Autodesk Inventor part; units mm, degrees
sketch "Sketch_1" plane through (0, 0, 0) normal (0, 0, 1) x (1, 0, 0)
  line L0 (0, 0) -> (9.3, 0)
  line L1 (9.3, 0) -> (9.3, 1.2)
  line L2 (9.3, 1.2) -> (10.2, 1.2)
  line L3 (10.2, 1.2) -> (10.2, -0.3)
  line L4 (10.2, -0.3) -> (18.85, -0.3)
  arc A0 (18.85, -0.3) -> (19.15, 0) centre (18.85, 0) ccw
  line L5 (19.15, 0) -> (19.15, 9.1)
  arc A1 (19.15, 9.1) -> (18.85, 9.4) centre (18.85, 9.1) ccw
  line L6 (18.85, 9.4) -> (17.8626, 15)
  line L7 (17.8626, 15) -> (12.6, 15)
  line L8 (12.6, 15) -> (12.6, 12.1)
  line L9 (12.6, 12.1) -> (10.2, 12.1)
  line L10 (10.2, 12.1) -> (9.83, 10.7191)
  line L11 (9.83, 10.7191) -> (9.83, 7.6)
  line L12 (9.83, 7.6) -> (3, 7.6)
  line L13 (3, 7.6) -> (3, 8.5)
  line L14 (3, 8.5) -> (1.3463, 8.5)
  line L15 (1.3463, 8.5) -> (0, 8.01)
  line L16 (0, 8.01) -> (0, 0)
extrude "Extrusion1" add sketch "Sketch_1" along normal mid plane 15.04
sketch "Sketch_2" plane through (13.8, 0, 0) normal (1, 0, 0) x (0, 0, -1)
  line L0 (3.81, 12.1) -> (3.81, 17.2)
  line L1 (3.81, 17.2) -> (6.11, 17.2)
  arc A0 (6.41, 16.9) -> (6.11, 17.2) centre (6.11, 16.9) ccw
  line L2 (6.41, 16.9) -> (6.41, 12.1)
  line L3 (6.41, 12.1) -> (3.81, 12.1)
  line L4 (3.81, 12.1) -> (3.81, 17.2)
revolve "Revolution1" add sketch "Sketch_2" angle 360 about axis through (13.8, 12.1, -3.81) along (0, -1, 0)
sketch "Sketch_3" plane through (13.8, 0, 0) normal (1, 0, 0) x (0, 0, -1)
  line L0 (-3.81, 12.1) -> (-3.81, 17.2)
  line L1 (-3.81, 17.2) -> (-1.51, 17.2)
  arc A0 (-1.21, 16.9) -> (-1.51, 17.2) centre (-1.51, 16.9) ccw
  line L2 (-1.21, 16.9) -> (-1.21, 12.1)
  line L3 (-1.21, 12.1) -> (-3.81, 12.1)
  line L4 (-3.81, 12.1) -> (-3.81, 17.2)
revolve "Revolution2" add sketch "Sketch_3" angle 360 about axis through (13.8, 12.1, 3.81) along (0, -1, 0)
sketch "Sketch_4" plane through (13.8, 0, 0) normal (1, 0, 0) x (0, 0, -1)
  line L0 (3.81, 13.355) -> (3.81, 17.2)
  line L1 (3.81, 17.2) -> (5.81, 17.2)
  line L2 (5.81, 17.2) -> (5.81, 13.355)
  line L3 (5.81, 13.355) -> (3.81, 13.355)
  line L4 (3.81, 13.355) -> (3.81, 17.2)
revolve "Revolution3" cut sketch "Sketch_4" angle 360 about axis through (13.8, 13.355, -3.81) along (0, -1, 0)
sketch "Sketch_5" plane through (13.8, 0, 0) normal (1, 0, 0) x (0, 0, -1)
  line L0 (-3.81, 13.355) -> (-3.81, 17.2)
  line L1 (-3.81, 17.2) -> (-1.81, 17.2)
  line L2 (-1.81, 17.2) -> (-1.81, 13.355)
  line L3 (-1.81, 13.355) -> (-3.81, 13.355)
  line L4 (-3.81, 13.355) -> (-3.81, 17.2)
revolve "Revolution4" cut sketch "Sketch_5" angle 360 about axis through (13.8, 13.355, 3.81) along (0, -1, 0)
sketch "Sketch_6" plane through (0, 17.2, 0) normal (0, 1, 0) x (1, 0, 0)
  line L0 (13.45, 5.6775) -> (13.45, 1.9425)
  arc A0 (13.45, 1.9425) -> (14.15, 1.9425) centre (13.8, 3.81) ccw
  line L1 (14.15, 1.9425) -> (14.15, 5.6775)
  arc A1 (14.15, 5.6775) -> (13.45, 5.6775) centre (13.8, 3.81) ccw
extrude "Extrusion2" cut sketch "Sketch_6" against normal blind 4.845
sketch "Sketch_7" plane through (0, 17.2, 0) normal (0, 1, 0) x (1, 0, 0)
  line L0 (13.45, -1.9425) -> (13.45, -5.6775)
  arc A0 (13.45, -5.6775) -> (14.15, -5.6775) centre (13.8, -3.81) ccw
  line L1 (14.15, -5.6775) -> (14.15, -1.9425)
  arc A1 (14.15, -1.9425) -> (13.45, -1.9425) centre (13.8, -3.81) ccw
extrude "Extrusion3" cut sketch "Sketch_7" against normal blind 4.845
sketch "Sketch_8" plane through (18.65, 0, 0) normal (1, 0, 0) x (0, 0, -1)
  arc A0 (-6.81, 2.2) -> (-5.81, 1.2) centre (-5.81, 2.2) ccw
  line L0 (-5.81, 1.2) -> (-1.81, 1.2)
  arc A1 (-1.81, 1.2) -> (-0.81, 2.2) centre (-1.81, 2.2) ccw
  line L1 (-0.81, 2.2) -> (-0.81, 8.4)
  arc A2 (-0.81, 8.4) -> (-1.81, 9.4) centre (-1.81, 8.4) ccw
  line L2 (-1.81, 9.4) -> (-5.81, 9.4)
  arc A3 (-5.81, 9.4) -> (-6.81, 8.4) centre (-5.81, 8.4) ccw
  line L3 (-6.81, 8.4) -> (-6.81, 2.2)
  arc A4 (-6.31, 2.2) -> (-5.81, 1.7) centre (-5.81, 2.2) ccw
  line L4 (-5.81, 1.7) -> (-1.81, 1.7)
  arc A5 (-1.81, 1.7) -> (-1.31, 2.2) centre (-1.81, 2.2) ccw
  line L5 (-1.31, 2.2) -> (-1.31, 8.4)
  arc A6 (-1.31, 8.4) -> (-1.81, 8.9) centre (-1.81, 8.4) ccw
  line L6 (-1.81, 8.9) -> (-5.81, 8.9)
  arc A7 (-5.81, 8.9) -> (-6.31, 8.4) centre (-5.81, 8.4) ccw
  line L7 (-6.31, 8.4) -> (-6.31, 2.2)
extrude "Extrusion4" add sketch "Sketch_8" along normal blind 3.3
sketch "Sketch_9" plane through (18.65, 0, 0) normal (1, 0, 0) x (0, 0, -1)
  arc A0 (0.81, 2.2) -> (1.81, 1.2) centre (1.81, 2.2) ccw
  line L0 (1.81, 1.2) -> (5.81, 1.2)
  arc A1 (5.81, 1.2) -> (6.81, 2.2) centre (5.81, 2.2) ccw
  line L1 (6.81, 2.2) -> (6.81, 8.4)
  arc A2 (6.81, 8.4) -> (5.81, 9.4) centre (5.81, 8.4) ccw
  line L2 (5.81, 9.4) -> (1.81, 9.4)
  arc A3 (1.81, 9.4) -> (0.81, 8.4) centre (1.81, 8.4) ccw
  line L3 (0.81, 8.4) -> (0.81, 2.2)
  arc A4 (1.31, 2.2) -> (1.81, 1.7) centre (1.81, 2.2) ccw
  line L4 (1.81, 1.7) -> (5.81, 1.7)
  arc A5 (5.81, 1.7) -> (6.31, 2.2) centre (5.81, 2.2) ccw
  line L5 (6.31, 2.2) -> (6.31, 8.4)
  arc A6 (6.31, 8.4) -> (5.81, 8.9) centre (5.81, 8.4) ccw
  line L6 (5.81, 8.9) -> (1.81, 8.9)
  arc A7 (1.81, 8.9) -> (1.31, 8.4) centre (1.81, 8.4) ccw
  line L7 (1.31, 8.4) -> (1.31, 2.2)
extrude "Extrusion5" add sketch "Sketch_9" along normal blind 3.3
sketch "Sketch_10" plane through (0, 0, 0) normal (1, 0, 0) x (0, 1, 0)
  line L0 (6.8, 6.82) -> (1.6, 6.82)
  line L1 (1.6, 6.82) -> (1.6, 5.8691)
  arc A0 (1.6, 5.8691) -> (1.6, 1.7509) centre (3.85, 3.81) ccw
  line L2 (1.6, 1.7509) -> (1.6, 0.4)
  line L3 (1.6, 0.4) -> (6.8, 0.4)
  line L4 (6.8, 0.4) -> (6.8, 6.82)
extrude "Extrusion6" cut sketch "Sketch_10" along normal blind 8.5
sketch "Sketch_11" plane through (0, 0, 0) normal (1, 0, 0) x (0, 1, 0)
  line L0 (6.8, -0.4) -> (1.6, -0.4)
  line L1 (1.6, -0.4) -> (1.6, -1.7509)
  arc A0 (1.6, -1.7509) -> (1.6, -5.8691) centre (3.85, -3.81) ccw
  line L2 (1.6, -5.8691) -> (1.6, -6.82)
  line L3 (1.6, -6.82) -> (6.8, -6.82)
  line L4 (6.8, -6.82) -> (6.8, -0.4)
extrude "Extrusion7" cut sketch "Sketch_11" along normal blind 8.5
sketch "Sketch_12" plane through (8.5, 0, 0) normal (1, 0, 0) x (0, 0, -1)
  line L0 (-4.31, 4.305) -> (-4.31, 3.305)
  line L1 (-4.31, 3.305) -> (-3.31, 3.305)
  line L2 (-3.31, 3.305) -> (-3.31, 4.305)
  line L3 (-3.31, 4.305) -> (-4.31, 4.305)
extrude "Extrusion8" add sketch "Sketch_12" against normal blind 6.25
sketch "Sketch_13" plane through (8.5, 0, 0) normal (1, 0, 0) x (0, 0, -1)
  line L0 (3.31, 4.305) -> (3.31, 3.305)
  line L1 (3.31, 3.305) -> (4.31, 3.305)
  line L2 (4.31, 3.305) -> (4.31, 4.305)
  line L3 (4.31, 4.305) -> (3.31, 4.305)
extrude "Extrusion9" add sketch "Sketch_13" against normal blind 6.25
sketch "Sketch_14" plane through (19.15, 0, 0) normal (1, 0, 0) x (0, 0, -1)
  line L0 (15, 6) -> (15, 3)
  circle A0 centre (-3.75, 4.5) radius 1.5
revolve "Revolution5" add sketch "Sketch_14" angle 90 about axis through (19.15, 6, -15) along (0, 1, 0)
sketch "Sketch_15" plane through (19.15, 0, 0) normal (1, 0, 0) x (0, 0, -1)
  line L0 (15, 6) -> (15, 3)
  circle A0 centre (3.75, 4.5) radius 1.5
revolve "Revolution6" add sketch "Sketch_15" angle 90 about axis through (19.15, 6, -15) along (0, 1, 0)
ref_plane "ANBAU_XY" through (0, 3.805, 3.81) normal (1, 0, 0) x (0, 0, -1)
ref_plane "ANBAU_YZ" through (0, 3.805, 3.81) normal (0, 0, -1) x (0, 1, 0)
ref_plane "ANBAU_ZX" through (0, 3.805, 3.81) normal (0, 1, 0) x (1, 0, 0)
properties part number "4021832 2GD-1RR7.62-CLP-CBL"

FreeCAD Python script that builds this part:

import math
import FreeCAD as App
import Part
import Sketcher
from FreeCAD import Vector
Q = App.Units.Quantity

doc = App.newDocument("Part")
body = doc.addObject("PartDesign::Body", "Body")

# Sketch on XY plane
sketch1 = body.newObject("Sketcher::SketchObject", "Sketch")
sketch1.AttachmentSupport = (doc.getObject("XY_Plane"), [""])
sketch1.MapMode = "FlatFace"
sketch1.addGeometry([
    Part.LineSegment(Vector(0, 8.01, 0), Vector(0, 0, 0)),  # 0
    Part.LineSegment(Vector(0, 0, 0), Vector(9.3, 0, 0)),  # 1
    Part.LineSegment(Vector(9.3, 0, 0), Vector(9.3, 1.2, 0)),  # 2
    Part.LineSegment(Vector(9.3, 1.2, 0), Vector(10.2, 1.2, 0)),  # 3
    Part.LineSegment(Vector(10.2, 1.2, 0), Vector(10.2, -0.3, 0)),  # 4
    Part.LineSegment(Vector(10.2, -0.3, 0), Vector(18.85, -0.3, 0)),  # 5
    Part.ArcOfCircle(Part.Circle(Vector(18.85, 0, 0), Vector(0, 0, 1), 0.3), math.radians(-90), math.radians(0)),  # 6
    Part.LineSegment(Vector(19.15, 0, 0), Vector(19.15, 9.1, 0)),  # 7
    Part.ArcOfCircle(Part.Circle(Vector(18.85, 9.1, 0), Vector(0, 0, 1), 0.3), math.radians(0), math.radians(90)),  # 8
    Part.LineSegment(Vector(18.85, 9.4, 0), Vector(17.86, 15, 0)),  # 9
    Part.LineSegment(Vector(17.86, 15, 0), Vector(12.6, 15, 0)),  # 10
    Part.LineSegment(Vector(12.6, 15, 0), Vector(12.6, 12.1, 0)),  # 11
    Part.LineSegment(Vector(12.6, 12.1, 0), Vector(10.2, 12.1, 0)),  # 12
    Part.LineSegment(Vector(10.2, 12.1, 0), Vector(9.83, 10.72, 0)),  # 13
    Part.LineSegment(Vector(9.83, 10.72, 0), Vector(9.83, 7.6, 0)),  # 14
    Part.LineSegment(Vector(9.83, 7.6, 0), Vector(3, 7.6, 0)),  # 15
    Part.LineSegment(Vector(3, 7.6, 0), Vector(3, 8.5, 0)),  # 16
    Part.LineSegment(Vector(3, 8.5, 0), Vector(1.35, 8.5, 0)),  # 17
    Part.LineSegment(Vector(1.35, 8.5, 0), Vector(0, 8.01, 0)),  # 18
], False)
sketch1.addConstraint([
    Sketcher.Constraint("Coincident", 0, 2, 1, 1),
    Sketcher.Constraint("Coincident", 1, 2, 2, 1),
    Sketcher.Constraint("Coincident", 2, 2, 3, 1),
    Sketcher.Constraint("Coincident", 3, 2, 4, 1),
    Sketcher.Constraint("Coincident", 4, 2, 5, 1),
    Sketcher.Constraint("Tangent", 5, 2, 6, 1),
    Sketcher.Constraint("Tangent", 6, 2, 7, 1),
    Sketcher.Constraint("Tangent", 7, 2, 8, 1),
    Sketcher.Constraint("Coincident", 8, 2, 9, 1),
    Sketcher.Constraint("Coincident", 9, 2, 10, 1),
    Sketcher.Constraint("Coincident", 10, 2, 11, 1),
    Sketcher.Constraint("Coincident", 11, 2, 12, 1),
    Sketcher.Constraint("Coincident", 12, 2, 13, 1),
    Sketcher.Constraint("Coincident", 13, 2, 14, 1),
    Sketcher.Constraint("Coincident", 14, 2, 15, 1),
    Sketcher.Constraint("Coincident", 15, 2, 16, 1),
    Sketcher.Constraint("Coincident", 16, 2, 17, 1),
    Sketcher.Constraint("Coincident", 17, 2, 18, 1),
    Sketcher.Constraint("Coincident", 18, 2, 0, 1),
    Sketcher.Constraint("Vertical", 0),
    Sketcher.Constraint("Horizontal", 1),
    Sketcher.Constraint("Vertical", 2),
    Sketcher.Constraint("Horizontal", 3),
    Sketcher.Constraint("Vertical", 4),
    Sketcher.Constraint("Horizontal", 5),
    Sketcher.Constraint("Vertical", 7),
    Sketcher.Constraint("Horizontal", 10),
    Sketcher.Constraint("Vertical", 11),
    Sketcher.Constraint("Horizontal", 12),
    Sketcher.Constraint("Vertical", 14),
    Sketcher.Constraint("Horizontal", 15),
    Sketcher.Constraint("Vertical", 16),
    Sketcher.Constraint("Horizontal", 17),
    Sketcher.Constraint("Coincident", 0, 2, -1, 1),
    Sketcher.Constraint("Equal", 6, 8),
    Sketcher.Constraint("PointOnObject", 6, 3, -1),
    Sketcher.Constraint("Vertical", 5, 2, 8, 2),
    Sketcher.Constraint("Vertical", 4, 2, 12, 2),
    Sketcher.Constraint("Equal", 3, 16),
    Sketcher.Constraint("Radius", 6, Q("0.3 mm")),
    Sketcher.Constraint("Angle", 9, Q("99.9997 deg")),
    Sketcher.Constraint("Angle", 13, Q("-104.9996 deg")),
    Sketcher.Constraint("Angle", 18, Q("-160.0005 deg")),
    Sketcher.Constraint("DistanceX", 1, 1, 1, 2, Q("9.3 mm")),
    Sketcher.Constraint("DistanceX", 3, 1, 3, 2, Q("0.9 mm")),
    Sketcher.Constraint("DistanceX", 12, 2, 12, 1, Q("2.4 mm")),
    Sketcher.Constraint("DistanceY", 2, 1, 2, 2, Q("1.2 mm")),
    Sketcher.Constraint("DistanceY", 7, 1, 7, 2, Q("9.1 mm")),
    Sketcher.Constraint("DistanceY", 11, 2, 11, 1, Q("2.9 mm")),
    Sketcher.Constraint("DistanceY", -1, 1, 9, 2, Q("15 mm")),
    Sketcher.Constraint("DistanceX", -1, 1, 15, 2, Q("3 mm")),
    Sketcher.Constraint("DistanceX", 5, 1, 5, 2, Q("8.65 mm")),
    Sketcher.Constraint("DistanceX", 15, 2, 15, 1, Q("6.83 mm")),
    Sketcher.Constraint("DistanceY", 0, 2, 0, 1, Q("8.01 mm")),
    Sketcher.Constraint("DistanceY", -1, 1, 14, 2, Q("7.6 mm")),
])
pad1 = body.newObject("PartDesign::Pad", "Pad")
pad1.Profile = sketch1
pad1.Length = 15.04
pad1.Midplane = True

# Sketch on YZ plane
sketch2 = body.newObject("Sketcher::SketchObject", "Sketch001")
sketch2.AttachmentSupport = (doc.getObject("YZ_Plane"), [""])
sketch2.MapMode = "FlatFace"
sketch2.AttachmentOffset = App.Placement(Vector(0, 0, 13.8), App.Rotation())
sketch2.addGeometry([
    Part.LineSegment(Vector(17.2, -3.81, 0), Vector(12.1, -3.81, 0)),  # 0
    Part.LineSegment(Vector(12.1, -3.81, 0), Vector(12.1, -6.41, 0)),  # 1
    Part.LineSegment(Vector(12.1, -6.41, 0), Vector(16.9, -6.41, 0)),  # 2
    Part.ArcOfCircle(Part.Circle(Vector(16.9, -6.11, 0), Vector(0, 0, 1), 0.3), math.radians(-90), math.radians(0)),  # 3
    Part.LineSegment(Vector(17.2, -6.11, 0), Vector(17.2, -3.81, 0)),  # 4
], False)
sketch2.addGeometry(Part.LineSegment(Vector(17.2, -3.81, 0), Vector(12.1, -3.81, 0)), True)  # axis
sketch2.addConstraint([
    Sketcher.Constraint("Coincident", 0, 2, 1, 1),
    Sketcher.Constraint("Coincident", 1, 2, 2, 1),
    Sketcher.Constraint("Tangent", 2, 2, 3, 1),
    Sketcher.Constraint("Tangent", 3, 2, 4, 1),
    Sketcher.Constraint("Coincident", 4, 2, 0, 1),
    Sketcher.Constraint("Horizontal", 0),
    Sketcher.Constraint("Vertical", 1),
    Sketcher.Constraint("Horizontal", 2),
    Sketcher.Constraint("Vertical", 4),
    Sketcher.Constraint("Horizontal", 5),
    Sketcher.Constraint("Coincident", 5, 1, 4, 2),
    Sketcher.Constraint("Vertical", 1, 2, 5, 2),
    Sketcher.Constraint("Radius", 3, Q("0.3 mm")),
    Sketcher.Constraint("DistanceX", 0, 2, 0, 1, Q("5.1 mm")),
    Sketcher.Constraint("DistanceY", 1, 2, 1, 1, Q("2.6 mm")),
    Sketcher.Constraint("DistanceX", -1, 1, 3, 3, Q("16.9 mm")),
    Sketcher.Constraint("DistanceY", 3, 3, -1, 1, Q("6.11 mm")),
])
revolution = body.newObject("PartDesign::Revolution", "Revolution")
revolution.Profile = sketch2
revolution.ReferenceAxis = (sketch2, ["Axis0"])
revolution.Angle = 360

# Sketch on YZ plane
sketch3 = body.newObject("Sketcher::SketchObject", "Sketch002")
sketch3.AttachmentSupport = (doc.getObject("YZ_Plane"), [""])
sketch3.MapMode = "FlatFace"
sketch3.AttachmentOffset = App.Placement(Vector(0, 0, 13.8), App.Rotation())
sketch3.addGeometry([
    Part.LineSegment(Vector(17.2, 3.81, 0), Vector(12.1, 3.81, 0)),  # 0
    Part.LineSegment(Vector(12.1, 3.81, 0), Vector(12.1, 1.21, 0)),  # 1
    Part.LineSegment(Vector(12.1, 1.21, 0), Vector(16.9, 1.21, 0)),  # 2
    Part.ArcOfCircle(Part.Circle(Vector(16.9, 1.51, 0), Vector(0, 0, 1), 0.3), math.radians(-90), math.radians(0)),  # 3
    Part.LineSegment(Vector(17.2, 1.51, 0), Vector(17.2, 3.81, 0)),  # 4
], False)
sketch3.addGeometry(Part.LineSegment(Vector(17.2, 3.81, 0), Vector(12.1, 3.81, 0)), True)  # axis
sketch3.addConstraint([
    Sketcher.Constraint("Coincident", 0, 2, 1, 1),
    Sketcher.Constraint("Coincident", 1, 2, 2, 1),
    Sketcher.Constraint("Tangent", 2, 2, 3, 1),
    Sketcher.Constraint("Tangent", 3, 2, 4, 1),
    Sketcher.Constraint("Coincident", 4, 2, 0, 1),
    Sketcher.Constraint("Horizontal", 0),
    Sketcher.Constraint("Vertical", 1),
    Sketcher.Constraint("Horizontal", 2),
    Sketcher.Constraint("Vertical", 4),
    Sketcher.Constraint("Horizontal", 5),
    Sketcher.Constraint("Coincident", 5, 1, 4, 2),
    Sketcher.Constraint("Vertical", 1, 2, 5, 2),
    Sketcher.Constraint("Radius", 3, Q("0.3 mm")),
    Sketcher.Constraint("DistanceX", 0, 2, 0, 1, Q("5.1 mm")),
    Sketcher.Constraint("DistanceY", 1, 2, 1, 1, Q("2.6 mm")),
    Sketcher.Constraint("DistanceX", -1, 1, 3, 3, Q("16.9 mm")),
    Sketcher.Constraint("DistanceY", -1, 1, 3, 3, Q("1.51 mm")),
])
revolution2 = body.newObject("PartDesign::Revolution", "Revolution001")
revolution2.Profile = sketch3
revolution2.ReferenceAxis = (sketch3, ["Axis0"])
revolution2.Angle = 360

# Sketch on YZ plane
sketch4 = body.newObject("Sketcher::SketchObject", "Sketch003")
sketch4.AttachmentSupport = (doc.getObject("YZ_Plane"), [""])
sketch4.MapMode = "FlatFace"
sketch4.AttachmentOffset = App.Placement(Vector(0, 0, 13.8), App.Rotation())
sketch4.addGeometry([
    Part.LineSegment(Vector(17.2, -3.8, 0), Vector(13.4, -3.8, 0)),
    Part.LineSegment(Vector(13.4, -3.8, 0), Vector(13.4, -5.8, 0)),
    Part.LineSegment(Vector(13.4, -5.8, 0), Vector(17.2, -5.8, 0)),
    Part.LineSegment(Vector(17.2, -5.8, 0), Vector(17.2, -3.8, 0)),
], False)
sketch4.addGeometry(Part.LineSegment(Vector(17.2, -3.8, 0), Vector(13.4, -3.8, 0)), True)  # axis
sketch4.addConstraint([
    Sketcher.Constraint("Coincident", 0, 2, 1, 1),
    Sketcher.Constraint("Coincident", 1, 2, 2, 1),
    Sketcher.Constraint("Coincident", 2, 2, 3, 1),
    Sketcher.Constraint("Coincident", 3, 2, 0, 1),
    Sketcher.Constraint("Horizontal", 0),
    Sketcher.Constraint("Vertical", 1),
    Sketcher.Constraint("Horizontal", 2),
    Sketcher.Constraint("Vertical", 3),
    Sketcher.Constraint("Horizontal", 4),
    Sketcher.Constraint("Coincident", 4, 1, 3, 2),
    Sketcher.Constraint("Vertical", 1, 2, 4, 2),
    Sketcher.Constraint("DistanceY", 1, 2, 1, 1, Q("2 mm")),
    Sketcher.Constraint("DistanceX", -1, 1, 2, 2, Q("17.2 mm")),
    Sketcher.Constraint("DistanceX", 0, 2, 0, 1, Q("3.845 mm")),
    Sketcher.Constraint("DistanceY", 0, 2, -1, 1, Q("3.81 mm")),
])
groove = body.newObject("PartDesign::Groove", "Groove")
groove.Profile = sketch4
groove.ReferenceAxis = (sketch4, ["Axis0"])
groove.Angle = 360

# Sketch on YZ plane
sketch5 = body.newObject("Sketcher::SketchObject", "Sketch004")
sketch5.AttachmentSupport = (doc.getObject("YZ_Plane"), [""])
sketch5.MapMode = "FlatFace"
sketch5.AttachmentOffset = App.Placement(Vector(0, 0, 13.8), App.Rotation())
sketch5.addGeometry([
    Part.LineSegment(Vector(17.2, 3.8, 0), Vector(13.4, 3.8, 0)),
    Part.LineSegment(Vector(13.4, 3.8, 0), Vector(13.4, 1.8, 0)),
    Part.LineSegment(Vector(13.4, 1.8, 0), Vector(17.2, 1.8, 0)),
    Part.LineSegment(Vector(17.2, 1.8, 0), Vector(17.2, 3.8, 0)),
], False)
sketch5.addGeometry(Part.LineSegment(Vector(17.2, 3.8, 0), Vector(13.4, 3.8, 0)), True)  # axis
sketch5.addConstraint([
    Sketcher.Constraint("Coincident", 0, 2, 1, 1),
    Sketcher.Constraint("Coincident", 1, 2, 2, 1),
    Sketcher.Constraint("Coincident", 2, 2, 3, 1),
    Sketcher.Constraint("Coincident", 3, 2, 0, 1),
    Sketcher.Constraint("Horizontal", 0),
    Sketcher.Constraint("Vertical", 1),
    Sketcher.Constraint("Horizontal", 2),
    Sketcher.Constraint("Vertical", 3),
    Sketcher.Constraint("Horizontal", 4),
    Sketcher.Constraint("Coincident", 4, 1, 3, 2),
    Sketcher.Constraint("Vertical", 1, 2, 4, 2),
    Sketcher.Constraint("DistanceY", 1, 2, 1, 1, Q("2 mm")),
    Sketcher.Constraint("DistanceX", -1, 1, 2, 2, Q("17.2 mm")),
    Sketcher.Constraint("DistanceX", 0, 2, 0, 1, Q("3.845 mm")),
    Sketcher.Constraint("DistanceY", -1, 1, 0, 2, Q("3.81 mm")),
])
groove2 = body.newObject("PartDesign::Groove", "Groove001")
groove2.Profile = sketch5
groove2.ReferenceAxis = (sketch5, ["Axis0"])
groove2.Angle = 360

# Sketch on XZ plane
sketch6 = body.newObject("Sketcher::SketchObject", "Sketch005")
sketch6.AttachmentSupport = (doc.getObject("XZ_Plane"), [""])
sketch6.MapMode = "FlatFace"
sketch6.AttachmentOffset = App.Placement(Vector(0, 0, -17.2), App.Rotation())
sketch6.addGeometry([
    Part.ArcOfCircle(Part.Circle(Vector(13.8, -3.8, 0), Vector(0, 0, 1), 1.9), math.radians(-101), math.radians(-79)),
    Part.LineSegment(Vector(13.4, -5.7, 0), Vector(13.4, -1.9, 0)),
    Part.ArcOfCircle(Part.Circle(Vector(13.8, -3.8, 0), Vector(0, 0, 1), 1.9), math.radians(79), math.radians(101)),
    Part.LineSegment(Vector(14.2, -1.9, 0), Vector(14.2, -5.7, 0)),
], False)
sketch6.addConstraint([
    Sketcher.Constraint("Coincident", 0, 1, 1, 1),
    Sketcher.Constraint("Coincident", 1, 2, 2, 2),
    Sketcher.Constraint("Coincident", 2, 1, 3, 1),
    Sketcher.Constraint("Coincident", 3, 2, 0, 2),
    Sketcher.Constraint("Vertical", 1),
    Sketcher.Constraint("Vertical", 3),
    Sketcher.Constraint("Coincident", 2, 3, 0, 3),
    Sketcher.Constraint("Equal", 0, 2),
    Sketcher.Constraint("Horizontal", 1, 2, 2, 1),
    Sketcher.Constraint("Radius", 0, Q("1.9 mm")),
    Sketcher.Constraint("DistanceX", -1, 1, 0, 3, Q("13.8 mm")),
    Sketcher.Constraint("DistanceX", 1, 2, 2, 1, Q("0.7 mm")),
    Sketcher.Constraint("DistanceY", 0, 3, -1, 1, Q("3.81 mm")),
])
pocket1 = body.newObject("PartDesign::Pocket", "Pocket")
pocket1.Profile = sketch6
pocket1.Length = 4.845
pocket1.Reversed = True

# Sketch on XZ plane
sketch7 = body.newObject("Sketcher::SketchObject", "Sketch006")
sketch7.AttachmentSupport = (doc.getObject("XZ_Plane"), [""])
sketch7.MapMode = "FlatFace"
sketch7.AttachmentOffset = App.Placement(Vector(0, 0, -17.2), App.Rotation())
sketch7.addGeometry([
    Part.ArcOfCircle(Part.Circle(Vector(13.8, 3.8, 0), Vector(0, 0, 1), 1.9), math.radians(-101), math.radians(-79)),
    Part.LineSegment(Vector(13.4, 1.9, 0), Vector(13.4, 5.7, 0)),
    Part.ArcOfCircle(Part.Circle(Vector(13.8, 3.8, 0), Vector(0, 0, 1), 1.9), math.radians(79), math.radians(101)),
    Part.LineSegment(Vector(14.2, 5.7, 0), Vector(14.2, 1.9, 0)),
], False)
sketch7.addConstraint([
    Sketcher.Constraint("Coincident", 0, 1, 1, 1),
    Sketcher.Constraint("Coincident", 1, 2, 2, 2),
    Sketcher.Constraint("Coincident", 2, 1, 3, 1),
    Sketcher.Constraint("Coincident", 3, 2, 0, 2),
    Sketcher.Constraint("Vertical", 1),
    Sketcher.Constraint("Vertical", 3),
    Sketcher.Constraint("Coincident", 2, 3, 0, 3),
    Sketcher.Constraint("Equal", 0, 2),
    Sketcher.Constraint("Horizontal", 1, 2, 2, 1),
    Sketcher.Constraint("Radius", 0, Q("1.9 mm")),
    Sketcher.Constraint("DistanceX", -1, 1, 0, 3, Q("13.8 mm")),
    Sketcher.Constraint("DistanceX", 1, 2, 2, 1, Q("0.7 mm")),
    Sketcher.Constraint("DistanceY", -1, 1, 0, 3, Q("3.81 mm")),
])
pocket2 = body.newObject("PartDesign::Pocket", "Pocket001")
pocket2.Profile = sketch7
pocket2.Length = 4.845
pocket2.Reversed = True

# Sketch on YZ plane
sketch8 = body.newObject("Sketcher::SketchObject", "Sketch007")
sketch8.AttachmentSupport = (doc.getObject("YZ_Plane"), [""])
sketch8.MapMode = "FlatFace"
sketch8.AttachmentOffset = App.Placement(Vector(0, 0, 18.65), App.Rotation())
sketch8.addGeometry([
    Part.LineSegment(Vector(8.4, 6.8, 0), Vector(2.2, 6.8, 0)),  # 0
    Part.ArcOfCircle(Part.Circle(Vector(2.2, 5.8, 0), Vector(0, 0, 1), 1), math.radians(90), math.radians(180)),  # 1
    Part.LineSegment(Vector(1.2, 5.8, 0), Vector(1.2, 1.8, 0)),  # 2
    Part.ArcOfCircle(Part.Circle(Vector(2.2, 1.8, 0), Vector(0, 0, 1), 1), math.radians(180), math.radians(270)),  # 3
    Part.LineSegment(Vector(2.2, 0.8, 0), Vector(8.4, 0.8, 0)),  # 4
    Part.ArcOfCircle(Part.Circle(Vector(8.4, 1.8, 0), Vector(0, 0, 1), 1), math.radians(-90), math.radians(0)),  # 5
    Part.LineSegment(Vector(9.4, 1.8, 0), Vector(9.4, 5.8, 0)),  # 6
    Part.ArcOfCircle(Part.Circle(Vector(8.4, 5.8, 0), Vector(0, 0, 1), 1), math.radians(0), math.radians(90)),  # 7
    Part.ArcOfCircle(Part.Circle(Vector(2.2, 5.8, 0), Vector(0, 0, 1), 0.5), math.radians(90), math.radians(180)),  # 8
    Part.LineSegment(Vector(2.2, 6.3, 0), Vector(8.4, 6.3, 0)),  # 9
    Part.ArcOfCircle(Part.Circle(Vector(8.4, 5.8, 0), Vector(0, 0, 1), 0.5), math.radians(0), math.radians(90)),  # 10
    Part.LineSegment(Vector(8.9, 5.8, 0), Vector(8.9, 1.8, 0)),  # 11
    Part.ArcOfCircle(Part.Circle(Vector(8.4, 1.8, 0), Vector(0, 0, 1), 0.5), math.radians(-90), math.radians(0)),  # 12
    Part.LineSegment(Vector(8.4, 1.3, 0), Vector(2.2, 1.3, 0)),  # 13
    Part.ArcOfCircle(Part.Circle(Vector(2.2, 1.8, 0), Vector(0, 0, 1), 0.5), math.radians(180), math.radians(270)),  # 14
    Part.LineSegment(Vector(1.7, 1.8, 0), Vector(1.7, 5.8, 0)),  # 15
], False)
sketch8.addConstraint([
    Sketcher.Constraint("Tangent", 0, 2, 1, 1),
    Sketcher.Constraint("Tangent", 1, 2, 2, 1),
    Sketcher.Constraint("Tangent", 2, 2, 3, 1),
    Sketcher.Constraint("Tangent", 3, 2, 4, 1),
    Sketcher.Constraint("Tangent", 4, 2, 5, 1),
    Sketcher.Constraint("Tangent", 5, 2, 6, 1),
    Sketcher.Constraint("Tangent", 6, 2, 7, 1),
    Sketcher.Constraint("Tangent", 7, 2, 0, 1),
    Sketcher.Constraint("Tangent", 8, 1, 9, 1),
    Sketcher.Constraint("Tangent", 9, 2, 10, 2),
    Sketcher.Constraint("Tangent", 10, 1, 11, 1),
    Sketcher.Constraint("Tangent", 11, 2, 12, 2),
    Sketcher.Constraint("Tangent", 12, 1, 13, 1),
    Sketcher.Constraint("Tangent", 13, 2, 14, 2),
    Sketcher.Constraint("Tangent", 14, 1, 15, 1),
    Sketcher.Constraint("Tangent", 15, 2, 8, 2),
    Sketcher.Constraint("Horizontal", 0),
    Sketcher.Constraint("Vertical", 2),
    Sketcher.Constraint("Horizontal", 4),
    Sketcher.Constraint("Vertical", 6),
    Sketcher.Constraint("Horizontal", 9),
    Sketcher.Constraint("Vertical", 11),
    Sketcher.Constraint("Horizontal", 13),
    Sketcher.Constraint("Vertical", 15),
    Sketcher.Constraint("Coincident", 8, 3, 1, 3),
    Sketcher.Constraint("Coincident", 10, 3, 7, 3),
    Sketcher.Constraint("Coincident", 12, 3, 5, 3),
    Sketcher.Constraint("Equal", 1, 3),
    Sketcher.Constraint("Equal", 3, 5),
    Sketcher.Constraint("Equal", 5, 7),
    Sketcher.Constraint("Equal", 12, 14),
    Sketcher.Constraint("Radius", 1, Q("1 mm")),
    Sketcher.Constraint("Radius", 8, Q("0.5 mm")),
    Sketcher.Constraint("DistanceY", 2, 2, 2, 1, Q("4 mm")),
    Sketcher.Constraint("DistanceX", 0, 2, 0, 1, Q("6.2 mm")),
    Sketcher.Constraint("DistanceX", -1, 1, 1, 3, Q("2.2 mm")),
    Sketcher.Constraint("DistanceY", -1, 1, 1, 3, Q("5.81 mm")),
])
pad2 = body.newObject("PartDesign::Pad", "Pad001")
pad2.Profile = sketch8
pad2.Length = 3.3

# Sketch on YZ plane
sketch9 = body.newObject("Sketcher::SketchObject", "Sketch008")
sketch9.AttachmentSupport = (doc.getObject("YZ_Plane"), [""])
sketch9.MapMode = "FlatFace"
sketch9.AttachmentOffset = App.Placement(Vector(0, 0, 18.65), App.Rotation())
sketch9.addGeometry([
    Part.LineSegment(Vector(8.4, -0.8, 0), Vector(2.2, -0.8, 0)),  # 0
    Part.ArcOfCircle(Part.Circle(Vector(2.2, -1.8, 0), Vector(0, 0, 1), 1), math.radians(90), math.radians(180)),  # 1
    Part.LineSegment(Vector(1.2, -1.8, 0), Vector(1.2, -5.8, 0)),  # 2
    Part.ArcOfCircle(Part.Circle(Vector(2.2, -5.8, 0), Vector(0, 0, 1), 1), math.radians(180), math.radians(270)),  # 3
    Part.LineSegment(Vector(2.2, -6.8, 0), Vector(8.4, -6.8, 0)),  # 4
    Part.ArcOfCircle(Part.Circle(Vector(8.4, -5.8, 0), Vector(0, 0, 1), 1), math.radians(-90), math.radians(0)),  # 5
    Part.LineSegment(Vector(9.4, -5.8, 0), Vector(9.4, -1.8, 0)),  # 6
    Part.ArcOfCircle(Part.Circle(Vector(8.4, -1.8, 0), Vector(0, 0, 1), 1), math.radians(0), math.radians(90)),  # 7
    Part.ArcOfCircle(Part.Circle(Vector(2.2, -1.8, 0), Vector(0, 0, 1), 0.5), math.radians(90), math.radians(180)),  # 8
    Part.LineSegment(Vector(2.2, -1.3, 0), Vector(8.4, -1.3, 0)),  # 9
    Part.ArcOfCircle(Part.Circle(Vector(8.4, -1.8, 0), Vector(0, 0, 1), 0.5), math.radians(0), math.radians(90)),  # 10
    Part.LineSegment(Vector(8.9, -1.8, 0), Vector(8.9, -5.8, 0)),  # 11
    Part.ArcOfCircle(Part.Circle(Vector(8.4, -5.8, 0), Vector(0, 0, 1), 0.5), math.radians(-90), math.radians(0)),  # 12
    Part.LineSegment(Vector(8.4, -6.3, 0), Vector(2.2, -6.3, 0)),  # 13
    Part.ArcOfCircle(Part.Circle(Vector(2.2, -5.8, 0), Vector(0, 0, 1), 0.5), math.radians(180), math.radians(270)),  # 14
    Part.LineSegment(Vector(1.7, -5.8, 0), Vector(1.7, -1.8, 0)),  # 15
], False)
sketch9.addConstraint([
    Sketcher.Constraint("Tangent", 0, 2, 1, 1),
    Sketcher.Constraint("Tangent", 1, 2, 2, 1),
    Sketcher.Constraint("Tangent", 2, 2, 3, 1),
    Sketcher.Constraint("Tangent", 3, 2, 4, 1),
    Sketcher.Constraint("Tangent", 4, 2, 5, 1),
    Sketcher.Constraint("Tangent", 5, 2, 6, 1),
    Sketcher.Constraint("Tangent", 6, 2, 7, 1),
    Sketcher.Constraint("Tangent", 7, 2, 0, 1),
    Sketcher.Constraint("Tangent", 8, 1, 9, 1),
    Sketcher.Constraint("Tangent", 9, 2, 10, 2),
    Sketcher.Constraint("Tangent", 10, 1, 11, 1),
    Sketcher.Constraint("Tangent", 11, 2, 12, 2),
    Sketcher.Constraint("Tangent", 12, 1, 13, 1),
    Sketcher.Constraint("Tangent", 13, 2, 14, 2),
    Sketcher.Constraint("Tangent", 14, 1, 15, 1),
    Sketcher.Constraint("Tangent", 15, 2, 8, 2),
    Sketcher.Constraint("Horizontal", 0),
    Sketcher.Constraint("Vertical", 2),
    Sketcher.Constraint("Horizontal", 4),
    Sketcher.Constraint("Vertical", 6),
    Sketcher.Constraint("Horizontal", 9),
    Sketcher.Constraint("Vertical", 11),
    Sketcher.Constraint("Horizontal", 13),
    Sketcher.Constraint("Vertical", 15),
    Sketcher.Constraint("Coincident", 8, 3, 1, 3),
    Sketcher.Constraint("Coincident", 10, 3, 7, 3),
    Sketcher.Constraint("Coincident", 12, 3, 5, 3),
    Sketcher.Constraint("Equal", 1, 3),
    Sketcher.Constraint("Equal", 3, 5),
    Sketcher.Constraint("Equal", 5, 7),
    Sketcher.Constraint("Equal", 12, 14),
    Sketcher.Constraint("Radius", 1, Q("1 mm")),
    Sketcher.Constraint("Radius", 8, Q("0.5 mm")),
    Sketcher.Constraint("DistanceY", 2, 2, 2, 1, Q("4 mm")),
    Sketcher.Constraint("DistanceX", 0, 2, 0, 1, Q("6.2 mm")),
    Sketcher.Constraint("DistanceX", -1, 1, 1, 3, Q("2.2 mm")),
    Sketcher.Constraint("DistanceY", 1, 3, -1, 1, Q("1.81 mm")),
])
pad3 = body.newObject("PartDesign::Pad", "Pad002")
pad3.Profile = sketch9
pad3.Length = 3.3

# Sketch on YZ plane
sketch10 = body.newObject("Sketcher::SketchObject", "Sketch009")
sketch10.AttachmentSupport = (doc.getObject("YZ_Plane"), [""])
sketch10.MapMode = "FlatFace"
sketch10.addGeometry([
    Part.LineSegment(Vector(6.8, 0.4, 0), Vector(6.8, 6.8, 0)),  # 0
    Part.LineSegment(Vector(6.8, 6.8, 0), Vector(1.6, 6.8, 0)),  # 1
    Part.LineSegment(Vector(1.6, 6.8, 0), Vector(1.6, 5.9, 0)),  # 2
    Part.ArcOfCircle(Part.Circle(Vector(3.9, 3.8, 0), Vector(0, 0, 1), 3), math.radians(138), math.radians(222)),  # 3
    Part.LineSegment(Vector(1.6, 1.8, 0), Vector(1.6, 0.4, 0)),  # 4
    Part.LineSegment(Vector(1.6, 0.4, 0), Vector(6.8, 0.4, 0)),  # 5
], False)
sketch10.addConstraint([
    Sketcher.Constraint("Coincident", 0, 2, 1, 1),
    Sketcher.Constraint("Coincident", 1, 2, 2, 1),
    Sketcher.Constraint("Coincident", 2, 2, 3, 1),
    Sketcher.Constraint("Coincident", 3, 2, 4, 1),
    Sketcher.Constraint("Coincident", 4, 2, 5, 1),
    Sketcher.Constraint("Coincident", 5, 2, 0, 1),
    Sketcher.Constraint("Vertical", 0),
    Sketcher.Constraint("Horizontal", 1),
    Sketcher.Constraint("Vertical", 2),
    Sketcher.Constraint("Vertical", 4),
    Sketcher.Constraint("Horizontal", 5),
    Sketcher.Constraint("Vertical", 2, 2, 3, 2),
    Sketcher.Constraint("Radius", 3, Q("3.05 mm")),
    Sketcher.Constraint("DistanceX", 1, 2, 1, 1, Q("5.2 mm")),
    Sketcher.Constraint("DistanceY", 0, 1, 0, 2, Q("6.42 mm")),
    Sketcher.Constraint("DistanceX", -1, 1, 0, 2, Q("6.8 mm")),
    Sketcher.Constraint("DistanceY", -1, 1, 4, 2, Q("0.4 mm")),
    Sketcher.Constraint("DistanceY", 2, 2, 2, 1, Q("0.951 mm")),
    Sketcher.Constraint("DistanceY", 4, 2, 4, 1, Q("1.351 mm")),
])
pocket3 = body.newObject("PartDesign::Pocket", "Pocket002")
pocket3.Profile = sketch10
pocket3.Length = 8.5
pocket3.Reversed = True

# Sketch on YZ plane
sketch11 = body.newObject("Sketcher::SketchObject", "Sketch010")
sketch11.AttachmentSupport = (doc.getObject("YZ_Plane"), [""])
sketch11.MapMode = "FlatFace"
sketch11.addGeometry([
    Part.LineSegment(Vector(6.8, -6.8, 0), Vector(6.8, -0.4, 0)),  # 0
    Part.LineSegment(Vector(6.8, -0.4, 0), Vector(1.6, -0.4, 0)),  # 1
    Part.LineSegment(Vector(1.6, -0.4, 0), Vector(1.6, -1.8, 0)),  # 2
    Part.ArcOfCircle(Part.Circle(Vector(3.9, -3.8, 0), Vector(0, 0, 1), 3), math.radians(138), math.radians(222)),  # 3
    Part.LineSegment(Vector(1.6, -5.9, 0), Vector(1.6, -6.8, 0)),  # 4
    Part.LineSegment(Vector(1.6, -6.8, 0), Vector(6.8, -6.8, 0)),  # 5
], False)
sketch11.addConstraint([
    Sketcher.Constraint("Coincident", 0, 2, 1, 1),
    Sketcher.Constraint("Coincident", 1, 2, 2, 1),
    Sketcher.Constraint("Coincident", 2, 2, 3, 1),
    Sketcher.Constraint("Coincident", 3, 2, 4, 1),
    Sketcher.Constraint("Coincident", 4, 2, 5, 1),
    Sketcher.Constraint("Coincident", 5, 2, 0, 1),
    Sketcher.Constraint("Vertical", 0),
    Sketcher.Constraint("Horizontal", 1),
    Sketcher.Constraint("Vertical", 2),
    Sketcher.Constraint("Vertical", 4),
    Sketcher.Constraint("Horizontal", 5),
    Sketcher.Constraint("Vertical", 2, 2, 3, 2),
    Sketcher.Constraint("Radius", 3, Q("3.05 mm")),
    Sketcher.Constraint("DistanceX", 1, 2, 1, 1, Q("5.2 mm")),
    Sketcher.Constraint("DistanceY", 0, 1, 0, 2, Q("6.42 mm")),
    Sketcher.Constraint("DistanceX", -1, 1, 0, 2, Q("6.8 mm")),
    Sketcher.Constraint("DistanceY", 0, 2, -1, 1, Q("0.4 mm")),
    Sketcher.Constraint("DistanceY", 2, 2, 2, 1, Q("1.351 mm")),
    Sketcher.Constraint("DistanceY", 4, 2, 4, 1, Q("0.951 mm")),
])
pocket4 = body.newObject("PartDesign::Pocket", "Pocket003")
pocket4.Profile = sketch11
pocket4.Length = 8.5
pocket4.Reversed = True

# Sketch on YZ plane
sketch12 = body.newObject("Sketcher::SketchObject", "Sketch011")
sketch12.AttachmentSupport = (doc.getObject("YZ_Plane"), [""])
sketch12.MapMode = "FlatFace"
sketch12.AttachmentOffset = App.Placement(Vector(0, 0, 8.5), App.Rotation())
sketch12.addGeometry([
    Part.LineSegment(Vector(4.3, 3.3, 0), Vector(4.3, 4.3, 0)),
    Part.LineSegment(Vector(4.3, 4.3, 0), Vector(3.3, 4.3, 0)),
    Part.LineSegment(Vector(3.3, 4.3, 0), Vector(3.3, 3.3, 0)),
    Part.LineSegment(Vector(3.3, 3.3, 0), Vector(4.3, 3.3, 0)),
], False)
sketch12.addConstraint([
    Sketcher.Constraint("Coincident", 0, 2, 1, 1),
    Sketcher.Constraint("Coincident", 1, 2, 2, 1),
    Sketcher.Constraint("Coincident", 2, 2, 3, 1),
    Sketcher.Constraint("Coincident", 3, 2, 0, 1),
    Sketcher.Constraint("Vertical", 0),
    Sketcher.Constraint("Horizontal", 1),
    Sketcher.Constraint("Vertical", 2),
    Sketcher.Constraint("Horizontal", 3),
    Sketcher.Constraint("Equal", 3, 0),
    Sketcher.Constraint("DistanceX", 1, 2, 1, 1, Q("1 mm")),
    Sketcher.Constraint("DistanceY", -1, 1, 0, 2, Q("4.31 mm")),
    Sketcher.Constraint("DistanceX", -1, 1, 0, 2, Q("4.305 mm")),
])
pad4 = body.newObject("PartDesign::Pad", "Pad003")
pad4.Profile = sketch12
pad4.Length = 6.25
pad4.Reversed = True

# Sketch on YZ plane
sketch13 = body.newObject("Sketcher::SketchObject", "Sketch012")
sketch13.AttachmentSupport = (doc.getObject("YZ_Plane"), [""])
sketch13.MapMode = "FlatFace"
sketch13.AttachmentOffset = App.Placement(Vector(0, 0, 8.5), App.Rotation())
sketch13.addGeometry([
    Part.LineSegment(Vector(4.3, -4.3, 0), Vector(4.3, -3.3, 0)),
    Part.LineSegment(Vector(4.3, -3.3, 0), Vector(3.3, -3.3, 0)),
    Part.LineSegment(Vector(3.3, -3.3, 0), Vector(3.3, -4.3, 0)),
    Part.LineSegment(Vector(3.3, -4.3, 0), Vector(4.3, -4.3, 0)),
], False)
sketch13.addConstraint([
    Sketcher.Constraint("Coincident", 0, 2, 1, 1),
    Sketcher.Constraint("Coincident", 1, 2, 2, 1),
    Sketcher.Constraint("Coincident", 2, 2, 3, 1),
    Sketcher.Constraint("Coincident", 3, 2, 0, 1),
    Sketcher.Constraint("Vertical", 0),
    Sketcher.Constraint("Horizontal", 1),
    Sketcher.Constraint("Vertical", 2),
    Sketcher.Constraint("Horizontal", 3),
    Sketcher.Constraint("Equal", 3, 0),
    Sketcher.Constraint("DistanceX", 1, 2, 1, 1, Q("1 mm")),
    Sketcher.Constraint("DistanceY", 0, 2, -1, 1, Q("3.31 mm")),
    Sketcher.Constraint("DistanceX", -1, 1, 0, 2, Q("4.305 mm")),
])
pad5 = body.newObject("PartDesign::Pad", "Pad004")
pad5.Profile = sketch13
pad5.Length = 6.25
pad5.Reversed = True

# Sketch on YZ plane
sketch14 = body.newObject("Sketcher::SketchObject", "Sketch013")
sketch14.AttachmentSupport = (doc.getObject("YZ_Plane"), [""])
sketch14.MapMode = "FlatFace"
sketch14.AttachmentOffset = App.Placement(Vector(0, 0, 19.15), App.Rotation())
sketch14.addGeometry(Part.Circle(Vector(4.5, 3.8, 0), Vector(0, 0, 1), 1.5), False)
sketch14.addGeometry(Part.LineSegment(Vector(4.5, -15, 0), Vector(14.5, -15, 0)), True)  # axis
sketch14.addConstraint([
    Sketcher.Constraint("Horizontal", 1),
    Sketcher.Constraint("Vertical", 0, 3, 1, 1),
    Sketcher.Constraint("Diameter", 0, Q("3 mm")),
    Sketcher.Constraint("DistanceX", 1, 1, 1, 2, Q("10 mm")),
    Sketcher.Constraint("DistanceY", 1, 1, -1, 1, Q("15 mm")),
    Sketcher.Constraint("DistanceX", -1, 1, 0, 3, Q("4.5 mm")),
    Sketcher.Constraint("DistanceY", -1, 1, 0, 3, Q("3.75 mm")),
])
revolution3 = body.newObject("PartDesign::Revolution", "Revolution002")
revolution3.Profile = sketch14
revolution3.ReferenceAxis = (sketch14, ["Axis0"])
revolution3.Angle = 90

# Sketch on YZ plane
sketch15 = body.newObject("Sketcher::SketchObject", "Sketch014")
sketch15.AttachmentSupport = (doc.getObject("YZ_Plane"), [""])
sketch15.MapMode = "FlatFace"
sketch15.AttachmentOffset = App.Placement(Vector(0, 0, 19.15), App.Rotation())
sketch15.addGeometry(Part.Circle(Vector(4.5, -3.8, 0), Vector(0, 0, 1), 1.5), False)
sketch15.addGeometry(Part.LineSegment(Vector(4.5, -15, 0), Vector(14.5, -15, 0)), True)  # axis
sketch15.addConstraint([
    Sketcher.Constraint("Horizontal", 1),
    Sketcher.Constraint("Vertical", 0, 3, 1, 1),
    Sketcher.Constraint("Diameter", 0, Q("3 mm")),
    Sketcher.Constraint("DistanceX", 1, 1, 1, 2, Q("10 mm")),
    Sketcher.Constraint("DistanceY", 1, 1, -1, 1, Q("15 mm")),
    Sketcher.Constraint("DistanceX", -1, 1, 0, 3, Q("4.5 mm")),
    Sketcher.Constraint("DistanceY", 0, 3, -1, 1, Q("3.75 mm")),
])
revolution4 = body.newObject("PartDesign::Revolution", "Revolution003")
revolution4.Profile = sketch15
revolution4.ReferenceAxis = (sketch15, ["Axis0"])
revolution4.Angle = 90

doc.recompute()
